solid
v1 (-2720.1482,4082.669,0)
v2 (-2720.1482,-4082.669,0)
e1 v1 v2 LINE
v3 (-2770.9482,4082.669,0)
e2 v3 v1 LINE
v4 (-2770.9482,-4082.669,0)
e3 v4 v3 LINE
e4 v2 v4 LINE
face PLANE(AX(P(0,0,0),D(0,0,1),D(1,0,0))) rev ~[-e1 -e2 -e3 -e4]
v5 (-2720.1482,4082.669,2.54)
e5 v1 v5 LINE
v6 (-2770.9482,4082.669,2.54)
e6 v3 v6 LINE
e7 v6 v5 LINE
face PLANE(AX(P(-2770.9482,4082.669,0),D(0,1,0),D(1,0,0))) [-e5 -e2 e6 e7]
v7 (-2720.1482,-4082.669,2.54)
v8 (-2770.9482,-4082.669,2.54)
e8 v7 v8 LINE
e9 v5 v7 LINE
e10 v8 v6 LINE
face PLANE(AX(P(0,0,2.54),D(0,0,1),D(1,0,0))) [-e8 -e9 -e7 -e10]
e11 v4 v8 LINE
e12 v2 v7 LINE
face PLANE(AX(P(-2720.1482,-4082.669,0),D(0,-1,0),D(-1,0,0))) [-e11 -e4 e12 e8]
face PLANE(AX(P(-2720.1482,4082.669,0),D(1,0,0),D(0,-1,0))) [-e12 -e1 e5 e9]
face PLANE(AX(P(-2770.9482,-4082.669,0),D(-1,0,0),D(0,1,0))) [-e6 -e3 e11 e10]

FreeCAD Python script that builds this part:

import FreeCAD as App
import Part
import Sketcher
Q = App.Units.Quantity


def add_polygon(sketch, points):
    """Adds a closed chain of lines whose ends are joined by coincident constraints."""
    first, n = sketch.GeometryCount, len(points)
    for a, b in zip(points, points[1:] + points[:1]):
        sketch.addGeometry(Part.LineSegment(App.Vector(*a, 0), App.Vector(*b, 0)), False)
    for i in range(n):
        sketch.addConstraint(Sketcher.Constraint("Coincident", first + i, 2, first + (i + 1) % n, 1))

doc = App.newDocument("Part")
body = doc.addObject("PartDesign::Body", "Body")

sketch1 = doc.addObject("Sketcher::SketchObject", "Sketch")
body.addObject(sketch1)
sketch1.AttachmentSupport = (doc.XY_Plane, [""])
sketch1.MapMode = "FlatFace"
add_polygon(sketch1, [(-2720.1482, 4082.669), (-2770.9482, 4082.669), (-2770.9482, -4082.669), (-2720.1482, -4082.669)])
sketch1.addConstraint([
    Sketcher.Constraint("Horizontal", 0),
    Sketcher.Constraint("Vertical", 1),
    Sketcher.Constraint("Horizontal", 2),
    Sketcher.Constraint("Vertical", 3),
    Sketcher.Constraint("DistanceX", 0, 2, 0, 1, Q("2 in")),
    Sketcher.Constraint("DistanceY", 1, 2, 1, 1, Q("321.47 in")),
    Sketcher.Constraint("DistanceY", -1, 1, 0, 2, Q("160.735 in")),
    Sketcher.Constraint("DistanceX", 0, 2, -1, 1, 2770.9482),
])
pad1 = doc.addObject("PartDesign::Pad", "Pad")
body.addObject(pad1)
pad1.Profile = sketch1
pad1.Length = Q("0.1 in")

doc.recompute()
